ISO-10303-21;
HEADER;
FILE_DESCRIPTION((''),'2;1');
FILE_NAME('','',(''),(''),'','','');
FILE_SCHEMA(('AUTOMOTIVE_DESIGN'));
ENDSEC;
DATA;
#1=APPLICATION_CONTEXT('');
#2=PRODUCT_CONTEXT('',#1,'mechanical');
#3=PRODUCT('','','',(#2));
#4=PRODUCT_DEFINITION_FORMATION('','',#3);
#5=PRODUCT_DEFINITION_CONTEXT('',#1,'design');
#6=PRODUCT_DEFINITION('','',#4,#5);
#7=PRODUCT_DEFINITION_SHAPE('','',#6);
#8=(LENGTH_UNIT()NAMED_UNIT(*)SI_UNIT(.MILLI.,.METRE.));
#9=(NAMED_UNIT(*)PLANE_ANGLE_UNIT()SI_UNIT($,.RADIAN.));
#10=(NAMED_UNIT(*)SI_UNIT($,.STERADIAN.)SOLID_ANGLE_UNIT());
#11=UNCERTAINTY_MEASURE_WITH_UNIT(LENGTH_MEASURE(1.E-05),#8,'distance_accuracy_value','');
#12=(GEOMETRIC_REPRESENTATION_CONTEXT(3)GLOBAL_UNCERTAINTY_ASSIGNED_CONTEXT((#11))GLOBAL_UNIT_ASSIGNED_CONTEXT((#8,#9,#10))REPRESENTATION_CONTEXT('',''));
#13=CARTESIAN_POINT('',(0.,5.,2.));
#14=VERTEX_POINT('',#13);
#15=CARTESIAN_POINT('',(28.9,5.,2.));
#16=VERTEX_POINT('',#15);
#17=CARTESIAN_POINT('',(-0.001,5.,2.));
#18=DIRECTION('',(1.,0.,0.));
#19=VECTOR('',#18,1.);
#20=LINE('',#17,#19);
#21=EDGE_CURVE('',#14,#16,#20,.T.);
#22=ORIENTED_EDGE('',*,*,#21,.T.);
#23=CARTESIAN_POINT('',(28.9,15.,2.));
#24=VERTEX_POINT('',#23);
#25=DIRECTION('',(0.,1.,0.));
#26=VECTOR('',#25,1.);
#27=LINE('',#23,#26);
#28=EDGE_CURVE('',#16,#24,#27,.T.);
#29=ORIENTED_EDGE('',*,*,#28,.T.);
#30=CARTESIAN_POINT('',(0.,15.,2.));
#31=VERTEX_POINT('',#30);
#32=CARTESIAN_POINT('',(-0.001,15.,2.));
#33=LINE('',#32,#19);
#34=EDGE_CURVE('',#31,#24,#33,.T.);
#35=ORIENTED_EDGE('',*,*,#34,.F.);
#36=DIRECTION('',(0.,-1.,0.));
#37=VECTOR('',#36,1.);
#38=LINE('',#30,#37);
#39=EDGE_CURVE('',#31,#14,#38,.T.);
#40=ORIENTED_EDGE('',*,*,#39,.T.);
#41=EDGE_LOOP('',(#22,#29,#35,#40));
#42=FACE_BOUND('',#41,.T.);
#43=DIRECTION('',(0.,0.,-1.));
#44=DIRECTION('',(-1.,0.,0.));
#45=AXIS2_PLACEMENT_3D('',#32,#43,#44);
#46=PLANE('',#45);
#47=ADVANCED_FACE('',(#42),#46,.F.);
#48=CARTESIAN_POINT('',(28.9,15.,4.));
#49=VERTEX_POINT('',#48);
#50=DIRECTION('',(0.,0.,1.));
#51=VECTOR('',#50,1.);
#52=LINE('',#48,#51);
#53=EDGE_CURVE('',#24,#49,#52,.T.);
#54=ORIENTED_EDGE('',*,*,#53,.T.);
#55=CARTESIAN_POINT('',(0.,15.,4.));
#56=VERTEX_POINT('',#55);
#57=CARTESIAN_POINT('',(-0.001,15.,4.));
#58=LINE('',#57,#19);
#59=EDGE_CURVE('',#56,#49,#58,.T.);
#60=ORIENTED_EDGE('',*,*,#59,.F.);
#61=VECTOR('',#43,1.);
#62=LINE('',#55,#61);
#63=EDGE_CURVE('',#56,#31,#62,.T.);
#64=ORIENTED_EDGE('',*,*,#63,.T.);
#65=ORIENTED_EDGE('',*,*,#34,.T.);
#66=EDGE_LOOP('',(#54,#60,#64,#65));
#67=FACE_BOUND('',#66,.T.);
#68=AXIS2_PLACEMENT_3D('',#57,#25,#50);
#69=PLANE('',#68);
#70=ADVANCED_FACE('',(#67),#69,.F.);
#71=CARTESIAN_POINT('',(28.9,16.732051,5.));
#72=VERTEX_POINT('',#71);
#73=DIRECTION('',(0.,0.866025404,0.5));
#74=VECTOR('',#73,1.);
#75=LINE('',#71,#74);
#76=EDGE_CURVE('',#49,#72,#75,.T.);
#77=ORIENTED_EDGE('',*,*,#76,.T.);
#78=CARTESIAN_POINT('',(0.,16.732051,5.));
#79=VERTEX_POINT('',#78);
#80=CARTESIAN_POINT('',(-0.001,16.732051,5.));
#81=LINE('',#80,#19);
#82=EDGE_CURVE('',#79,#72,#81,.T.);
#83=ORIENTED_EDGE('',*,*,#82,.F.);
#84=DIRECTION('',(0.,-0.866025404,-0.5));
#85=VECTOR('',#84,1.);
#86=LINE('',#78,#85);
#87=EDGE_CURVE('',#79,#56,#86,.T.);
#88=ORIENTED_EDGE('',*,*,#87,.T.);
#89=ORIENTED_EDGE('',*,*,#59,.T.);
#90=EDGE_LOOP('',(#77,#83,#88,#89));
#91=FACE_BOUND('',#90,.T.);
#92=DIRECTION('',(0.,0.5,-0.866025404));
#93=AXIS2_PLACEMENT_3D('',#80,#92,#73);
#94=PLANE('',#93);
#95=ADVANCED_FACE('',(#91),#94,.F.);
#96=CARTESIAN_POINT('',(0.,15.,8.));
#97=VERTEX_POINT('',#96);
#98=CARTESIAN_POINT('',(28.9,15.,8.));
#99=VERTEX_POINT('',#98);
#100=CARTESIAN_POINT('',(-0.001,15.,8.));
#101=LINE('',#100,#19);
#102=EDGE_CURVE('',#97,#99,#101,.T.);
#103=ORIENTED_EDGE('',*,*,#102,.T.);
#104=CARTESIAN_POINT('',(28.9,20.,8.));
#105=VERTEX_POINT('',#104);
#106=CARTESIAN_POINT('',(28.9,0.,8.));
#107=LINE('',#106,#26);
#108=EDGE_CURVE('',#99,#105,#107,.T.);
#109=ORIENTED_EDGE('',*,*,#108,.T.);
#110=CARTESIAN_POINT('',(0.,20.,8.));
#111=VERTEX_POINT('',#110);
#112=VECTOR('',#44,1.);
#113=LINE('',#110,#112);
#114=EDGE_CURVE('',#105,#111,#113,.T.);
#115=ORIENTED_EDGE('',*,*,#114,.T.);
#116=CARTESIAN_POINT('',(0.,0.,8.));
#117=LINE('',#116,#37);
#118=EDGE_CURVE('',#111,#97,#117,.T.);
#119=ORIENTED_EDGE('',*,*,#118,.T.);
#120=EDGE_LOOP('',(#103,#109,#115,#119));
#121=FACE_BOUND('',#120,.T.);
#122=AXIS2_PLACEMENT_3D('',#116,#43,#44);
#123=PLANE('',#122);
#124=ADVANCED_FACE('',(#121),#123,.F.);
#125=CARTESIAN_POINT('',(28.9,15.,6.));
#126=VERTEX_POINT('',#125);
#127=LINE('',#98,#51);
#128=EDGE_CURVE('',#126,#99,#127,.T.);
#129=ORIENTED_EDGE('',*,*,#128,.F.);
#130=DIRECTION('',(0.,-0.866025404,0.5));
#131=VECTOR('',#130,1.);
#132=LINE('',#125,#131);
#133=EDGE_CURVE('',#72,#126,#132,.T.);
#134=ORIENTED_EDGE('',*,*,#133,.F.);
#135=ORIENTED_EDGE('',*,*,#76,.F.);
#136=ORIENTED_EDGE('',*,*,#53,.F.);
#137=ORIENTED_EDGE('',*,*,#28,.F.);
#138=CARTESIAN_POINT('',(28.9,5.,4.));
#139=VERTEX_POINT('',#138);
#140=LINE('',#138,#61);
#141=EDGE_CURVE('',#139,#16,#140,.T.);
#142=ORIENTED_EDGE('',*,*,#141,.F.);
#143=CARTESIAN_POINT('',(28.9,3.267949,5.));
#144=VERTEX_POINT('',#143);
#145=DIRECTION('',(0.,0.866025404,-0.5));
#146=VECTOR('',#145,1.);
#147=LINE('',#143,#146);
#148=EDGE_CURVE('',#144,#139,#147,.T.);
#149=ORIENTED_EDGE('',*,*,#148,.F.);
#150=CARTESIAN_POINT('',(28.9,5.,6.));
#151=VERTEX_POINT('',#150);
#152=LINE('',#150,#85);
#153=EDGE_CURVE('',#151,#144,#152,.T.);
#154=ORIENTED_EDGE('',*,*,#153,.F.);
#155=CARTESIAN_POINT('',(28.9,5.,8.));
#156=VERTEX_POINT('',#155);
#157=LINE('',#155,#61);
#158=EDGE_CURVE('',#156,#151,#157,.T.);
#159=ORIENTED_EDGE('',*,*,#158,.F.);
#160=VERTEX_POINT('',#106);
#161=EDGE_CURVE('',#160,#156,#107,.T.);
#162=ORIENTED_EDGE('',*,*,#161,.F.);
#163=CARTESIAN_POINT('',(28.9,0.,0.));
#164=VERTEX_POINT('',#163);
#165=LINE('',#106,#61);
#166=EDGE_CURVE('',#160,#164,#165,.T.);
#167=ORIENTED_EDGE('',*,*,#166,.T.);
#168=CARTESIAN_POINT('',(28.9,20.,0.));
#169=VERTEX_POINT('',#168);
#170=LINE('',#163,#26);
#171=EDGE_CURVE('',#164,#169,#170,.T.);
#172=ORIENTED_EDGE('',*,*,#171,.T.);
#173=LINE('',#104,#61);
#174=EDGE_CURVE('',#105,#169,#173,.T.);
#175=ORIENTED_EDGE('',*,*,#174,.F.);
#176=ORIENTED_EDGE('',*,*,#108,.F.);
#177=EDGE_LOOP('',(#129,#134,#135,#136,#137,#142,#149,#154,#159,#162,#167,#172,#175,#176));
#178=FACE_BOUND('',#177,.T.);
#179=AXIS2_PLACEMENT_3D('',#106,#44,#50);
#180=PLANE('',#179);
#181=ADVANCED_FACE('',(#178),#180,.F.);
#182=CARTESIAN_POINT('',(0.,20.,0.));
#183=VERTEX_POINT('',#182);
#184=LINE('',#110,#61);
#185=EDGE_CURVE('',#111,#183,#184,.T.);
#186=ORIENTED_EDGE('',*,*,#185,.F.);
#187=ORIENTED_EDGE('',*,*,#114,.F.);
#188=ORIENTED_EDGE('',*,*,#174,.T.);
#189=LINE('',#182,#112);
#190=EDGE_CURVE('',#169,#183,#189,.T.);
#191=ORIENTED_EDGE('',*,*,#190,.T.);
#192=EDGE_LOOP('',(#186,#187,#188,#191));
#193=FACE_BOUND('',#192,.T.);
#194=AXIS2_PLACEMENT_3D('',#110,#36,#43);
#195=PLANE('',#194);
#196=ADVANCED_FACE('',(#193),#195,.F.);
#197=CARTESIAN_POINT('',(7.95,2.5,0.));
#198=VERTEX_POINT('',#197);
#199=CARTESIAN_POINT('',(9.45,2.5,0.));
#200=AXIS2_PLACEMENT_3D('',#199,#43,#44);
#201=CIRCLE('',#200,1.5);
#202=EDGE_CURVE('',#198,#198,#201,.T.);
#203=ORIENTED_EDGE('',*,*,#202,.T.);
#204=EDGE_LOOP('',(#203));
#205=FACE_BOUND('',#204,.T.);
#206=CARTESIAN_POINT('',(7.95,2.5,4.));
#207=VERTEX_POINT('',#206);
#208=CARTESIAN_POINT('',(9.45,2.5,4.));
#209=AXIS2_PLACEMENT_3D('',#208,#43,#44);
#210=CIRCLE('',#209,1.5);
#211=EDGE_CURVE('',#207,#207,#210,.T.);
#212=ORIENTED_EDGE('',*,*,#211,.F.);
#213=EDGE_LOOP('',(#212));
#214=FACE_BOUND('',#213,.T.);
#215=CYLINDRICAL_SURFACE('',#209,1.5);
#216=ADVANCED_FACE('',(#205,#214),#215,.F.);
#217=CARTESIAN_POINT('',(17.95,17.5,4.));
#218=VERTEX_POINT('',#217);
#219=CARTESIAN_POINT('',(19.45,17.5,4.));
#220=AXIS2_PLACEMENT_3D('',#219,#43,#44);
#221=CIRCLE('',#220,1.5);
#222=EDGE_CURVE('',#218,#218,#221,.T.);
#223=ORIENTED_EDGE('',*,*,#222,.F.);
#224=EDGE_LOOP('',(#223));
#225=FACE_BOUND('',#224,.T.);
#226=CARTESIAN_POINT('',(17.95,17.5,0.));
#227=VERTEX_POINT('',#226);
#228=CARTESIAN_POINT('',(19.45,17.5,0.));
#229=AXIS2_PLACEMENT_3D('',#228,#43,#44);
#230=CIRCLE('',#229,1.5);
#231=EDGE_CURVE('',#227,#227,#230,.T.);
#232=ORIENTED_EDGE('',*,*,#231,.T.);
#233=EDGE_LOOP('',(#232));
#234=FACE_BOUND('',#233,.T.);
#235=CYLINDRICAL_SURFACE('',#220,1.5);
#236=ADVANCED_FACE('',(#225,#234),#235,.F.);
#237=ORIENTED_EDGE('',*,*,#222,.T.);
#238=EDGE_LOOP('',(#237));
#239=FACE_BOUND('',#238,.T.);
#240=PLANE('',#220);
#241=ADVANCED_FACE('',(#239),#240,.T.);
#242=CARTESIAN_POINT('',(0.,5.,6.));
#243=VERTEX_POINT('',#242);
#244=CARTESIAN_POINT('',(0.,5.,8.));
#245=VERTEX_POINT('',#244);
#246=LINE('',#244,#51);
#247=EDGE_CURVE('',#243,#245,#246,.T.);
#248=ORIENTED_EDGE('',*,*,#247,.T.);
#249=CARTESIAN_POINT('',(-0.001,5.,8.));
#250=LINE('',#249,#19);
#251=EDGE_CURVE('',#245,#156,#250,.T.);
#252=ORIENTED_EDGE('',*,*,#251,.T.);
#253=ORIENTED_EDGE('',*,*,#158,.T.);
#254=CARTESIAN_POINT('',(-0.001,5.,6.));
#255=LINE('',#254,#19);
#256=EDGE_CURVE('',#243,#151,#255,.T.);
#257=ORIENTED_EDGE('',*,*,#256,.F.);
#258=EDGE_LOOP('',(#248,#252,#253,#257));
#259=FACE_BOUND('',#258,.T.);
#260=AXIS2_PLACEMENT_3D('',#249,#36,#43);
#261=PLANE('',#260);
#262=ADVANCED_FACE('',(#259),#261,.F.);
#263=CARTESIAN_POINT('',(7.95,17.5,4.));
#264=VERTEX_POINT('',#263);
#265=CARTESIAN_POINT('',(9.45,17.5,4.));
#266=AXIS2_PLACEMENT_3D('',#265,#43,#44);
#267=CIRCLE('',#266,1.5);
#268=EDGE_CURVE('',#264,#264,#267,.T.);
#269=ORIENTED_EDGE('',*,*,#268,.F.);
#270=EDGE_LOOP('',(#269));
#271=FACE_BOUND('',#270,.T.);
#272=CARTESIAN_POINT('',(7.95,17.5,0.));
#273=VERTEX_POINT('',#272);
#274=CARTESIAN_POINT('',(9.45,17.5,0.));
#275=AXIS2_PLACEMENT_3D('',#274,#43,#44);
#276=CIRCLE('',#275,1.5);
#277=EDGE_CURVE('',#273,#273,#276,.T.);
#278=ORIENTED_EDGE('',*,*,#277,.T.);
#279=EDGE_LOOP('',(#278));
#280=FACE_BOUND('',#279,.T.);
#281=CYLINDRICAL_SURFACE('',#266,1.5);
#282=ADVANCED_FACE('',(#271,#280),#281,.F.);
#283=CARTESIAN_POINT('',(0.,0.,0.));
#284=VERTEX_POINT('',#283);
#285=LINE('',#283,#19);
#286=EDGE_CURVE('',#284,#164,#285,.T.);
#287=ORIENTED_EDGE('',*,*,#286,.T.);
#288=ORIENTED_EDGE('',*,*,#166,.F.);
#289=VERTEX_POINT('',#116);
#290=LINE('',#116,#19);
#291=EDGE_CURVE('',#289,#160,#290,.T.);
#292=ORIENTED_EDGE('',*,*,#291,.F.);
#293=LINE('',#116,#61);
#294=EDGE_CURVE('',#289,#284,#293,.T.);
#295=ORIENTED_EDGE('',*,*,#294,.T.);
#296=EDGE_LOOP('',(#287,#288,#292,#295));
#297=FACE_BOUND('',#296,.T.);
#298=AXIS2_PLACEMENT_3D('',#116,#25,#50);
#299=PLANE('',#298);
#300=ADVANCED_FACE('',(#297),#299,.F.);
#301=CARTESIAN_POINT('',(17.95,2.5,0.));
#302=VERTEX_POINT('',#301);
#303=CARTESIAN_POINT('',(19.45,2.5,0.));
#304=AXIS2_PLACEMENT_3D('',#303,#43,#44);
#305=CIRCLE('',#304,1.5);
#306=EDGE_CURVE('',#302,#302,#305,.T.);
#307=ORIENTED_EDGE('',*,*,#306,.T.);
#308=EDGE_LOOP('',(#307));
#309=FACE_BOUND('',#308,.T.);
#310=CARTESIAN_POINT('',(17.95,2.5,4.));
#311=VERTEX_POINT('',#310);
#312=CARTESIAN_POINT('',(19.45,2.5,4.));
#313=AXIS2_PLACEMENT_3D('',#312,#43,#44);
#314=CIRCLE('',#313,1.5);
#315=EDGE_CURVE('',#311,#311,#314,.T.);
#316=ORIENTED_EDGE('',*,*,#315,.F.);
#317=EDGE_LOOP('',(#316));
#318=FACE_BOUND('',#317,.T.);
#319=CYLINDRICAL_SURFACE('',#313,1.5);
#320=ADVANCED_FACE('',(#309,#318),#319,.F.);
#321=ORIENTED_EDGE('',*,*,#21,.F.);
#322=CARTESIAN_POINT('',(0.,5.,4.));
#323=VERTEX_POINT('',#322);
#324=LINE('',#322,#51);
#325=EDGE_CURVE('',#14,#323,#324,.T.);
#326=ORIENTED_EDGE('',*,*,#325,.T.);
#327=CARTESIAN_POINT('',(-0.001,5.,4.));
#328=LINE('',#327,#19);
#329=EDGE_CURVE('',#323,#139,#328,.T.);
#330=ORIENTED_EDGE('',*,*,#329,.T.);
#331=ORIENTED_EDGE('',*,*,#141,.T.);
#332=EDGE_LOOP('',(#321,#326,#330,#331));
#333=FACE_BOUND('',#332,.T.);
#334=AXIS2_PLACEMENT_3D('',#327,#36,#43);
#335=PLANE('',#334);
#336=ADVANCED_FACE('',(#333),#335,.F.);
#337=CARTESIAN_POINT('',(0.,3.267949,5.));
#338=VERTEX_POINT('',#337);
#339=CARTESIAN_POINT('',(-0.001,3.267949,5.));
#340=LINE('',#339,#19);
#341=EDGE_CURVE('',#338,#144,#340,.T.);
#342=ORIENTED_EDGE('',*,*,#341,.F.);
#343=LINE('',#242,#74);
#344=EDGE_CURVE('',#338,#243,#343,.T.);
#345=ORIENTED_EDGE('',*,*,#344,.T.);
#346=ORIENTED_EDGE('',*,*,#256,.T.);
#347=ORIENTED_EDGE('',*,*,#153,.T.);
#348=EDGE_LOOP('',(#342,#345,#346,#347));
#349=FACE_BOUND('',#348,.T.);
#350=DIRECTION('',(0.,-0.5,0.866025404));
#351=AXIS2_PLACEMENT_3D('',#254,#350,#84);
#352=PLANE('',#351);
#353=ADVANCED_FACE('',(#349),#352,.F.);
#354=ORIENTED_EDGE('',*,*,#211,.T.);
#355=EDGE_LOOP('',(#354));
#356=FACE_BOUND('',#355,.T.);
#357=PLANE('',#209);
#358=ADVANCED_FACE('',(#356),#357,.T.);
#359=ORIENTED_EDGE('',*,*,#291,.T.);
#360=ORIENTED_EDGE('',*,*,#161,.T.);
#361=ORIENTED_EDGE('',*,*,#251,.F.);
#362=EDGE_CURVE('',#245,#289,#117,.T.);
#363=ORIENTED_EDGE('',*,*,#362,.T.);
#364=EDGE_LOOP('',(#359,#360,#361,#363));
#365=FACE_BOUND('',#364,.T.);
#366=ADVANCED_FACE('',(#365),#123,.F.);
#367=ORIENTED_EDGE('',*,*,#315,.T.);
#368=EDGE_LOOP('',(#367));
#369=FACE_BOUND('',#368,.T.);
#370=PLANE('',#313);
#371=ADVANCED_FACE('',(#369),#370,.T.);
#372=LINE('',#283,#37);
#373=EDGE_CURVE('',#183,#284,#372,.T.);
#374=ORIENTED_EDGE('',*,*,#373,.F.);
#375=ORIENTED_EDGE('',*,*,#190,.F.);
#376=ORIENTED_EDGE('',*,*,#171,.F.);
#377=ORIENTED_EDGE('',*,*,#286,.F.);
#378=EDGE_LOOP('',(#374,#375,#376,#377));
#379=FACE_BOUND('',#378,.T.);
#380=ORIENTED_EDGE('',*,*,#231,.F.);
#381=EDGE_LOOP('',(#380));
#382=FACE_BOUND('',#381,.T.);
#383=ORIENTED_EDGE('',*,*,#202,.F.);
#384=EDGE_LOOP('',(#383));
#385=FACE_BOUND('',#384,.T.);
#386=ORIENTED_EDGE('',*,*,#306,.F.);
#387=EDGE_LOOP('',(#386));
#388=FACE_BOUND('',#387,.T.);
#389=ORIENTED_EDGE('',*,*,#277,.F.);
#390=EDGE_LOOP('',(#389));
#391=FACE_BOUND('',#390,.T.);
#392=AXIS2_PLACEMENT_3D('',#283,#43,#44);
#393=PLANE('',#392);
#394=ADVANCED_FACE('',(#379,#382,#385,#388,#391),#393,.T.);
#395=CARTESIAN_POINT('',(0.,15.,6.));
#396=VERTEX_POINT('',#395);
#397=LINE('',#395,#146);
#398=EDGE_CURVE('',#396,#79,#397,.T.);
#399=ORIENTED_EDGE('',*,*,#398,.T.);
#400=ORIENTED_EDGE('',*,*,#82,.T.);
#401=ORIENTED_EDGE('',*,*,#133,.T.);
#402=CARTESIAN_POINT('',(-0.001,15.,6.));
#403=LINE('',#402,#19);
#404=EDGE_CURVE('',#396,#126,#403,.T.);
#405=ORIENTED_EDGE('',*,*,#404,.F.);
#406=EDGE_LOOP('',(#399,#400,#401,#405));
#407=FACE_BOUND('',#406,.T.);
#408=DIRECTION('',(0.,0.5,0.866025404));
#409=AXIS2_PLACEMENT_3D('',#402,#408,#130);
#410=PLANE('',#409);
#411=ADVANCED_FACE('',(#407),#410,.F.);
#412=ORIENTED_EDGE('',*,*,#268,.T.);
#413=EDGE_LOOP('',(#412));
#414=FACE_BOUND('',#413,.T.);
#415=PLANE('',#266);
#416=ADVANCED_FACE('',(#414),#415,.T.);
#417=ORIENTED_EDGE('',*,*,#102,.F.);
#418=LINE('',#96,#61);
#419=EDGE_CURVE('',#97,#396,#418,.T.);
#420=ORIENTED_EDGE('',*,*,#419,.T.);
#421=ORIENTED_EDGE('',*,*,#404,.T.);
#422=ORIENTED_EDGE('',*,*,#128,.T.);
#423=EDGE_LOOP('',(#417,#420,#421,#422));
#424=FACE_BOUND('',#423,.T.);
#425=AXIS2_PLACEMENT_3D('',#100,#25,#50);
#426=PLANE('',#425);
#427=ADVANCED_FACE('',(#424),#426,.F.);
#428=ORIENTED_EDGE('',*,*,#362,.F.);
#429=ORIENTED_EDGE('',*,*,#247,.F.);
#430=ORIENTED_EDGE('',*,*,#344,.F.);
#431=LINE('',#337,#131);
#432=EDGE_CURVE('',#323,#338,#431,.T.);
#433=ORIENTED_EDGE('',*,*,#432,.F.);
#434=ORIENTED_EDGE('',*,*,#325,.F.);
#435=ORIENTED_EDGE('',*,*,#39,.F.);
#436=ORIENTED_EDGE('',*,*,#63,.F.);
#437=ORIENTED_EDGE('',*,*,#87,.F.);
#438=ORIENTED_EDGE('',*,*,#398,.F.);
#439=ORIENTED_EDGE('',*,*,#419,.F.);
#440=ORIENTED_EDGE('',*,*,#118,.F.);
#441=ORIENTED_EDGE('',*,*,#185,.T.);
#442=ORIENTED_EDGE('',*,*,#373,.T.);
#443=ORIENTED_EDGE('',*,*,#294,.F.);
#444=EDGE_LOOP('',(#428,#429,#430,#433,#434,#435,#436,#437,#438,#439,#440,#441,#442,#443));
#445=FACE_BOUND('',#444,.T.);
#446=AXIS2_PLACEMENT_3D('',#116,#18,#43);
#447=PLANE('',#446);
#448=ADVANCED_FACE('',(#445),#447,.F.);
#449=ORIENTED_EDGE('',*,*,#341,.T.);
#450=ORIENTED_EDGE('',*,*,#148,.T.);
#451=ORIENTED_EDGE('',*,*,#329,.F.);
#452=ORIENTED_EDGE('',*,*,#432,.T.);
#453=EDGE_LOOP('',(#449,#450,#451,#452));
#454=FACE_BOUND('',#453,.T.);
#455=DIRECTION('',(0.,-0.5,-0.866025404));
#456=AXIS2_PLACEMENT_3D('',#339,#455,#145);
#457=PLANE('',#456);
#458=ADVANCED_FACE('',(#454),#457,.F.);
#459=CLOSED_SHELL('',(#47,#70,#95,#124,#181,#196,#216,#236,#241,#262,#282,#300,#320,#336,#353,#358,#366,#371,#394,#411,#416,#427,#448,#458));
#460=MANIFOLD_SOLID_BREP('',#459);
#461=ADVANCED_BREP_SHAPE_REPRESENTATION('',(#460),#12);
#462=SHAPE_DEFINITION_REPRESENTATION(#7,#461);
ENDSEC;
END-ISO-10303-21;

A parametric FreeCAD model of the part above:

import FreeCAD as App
import Part
import Sketcher
Q = App.Units.Quantity


def add_polygon(sketch, points):
    """Adds a closed chain of lines whose ends are joined by coincident constraints."""
    first, n = sketch.GeometryCount, len(points)
    for a, b in zip(points, points[1:] + points[:1]):
        sketch.addGeometry(Part.LineSegment(App.Vector(*a, 0), App.Vector(*b, 0)), False)
    for i in range(n):
        sketch.addConstraint(Sketcher.Constraint("Coincident", first + i, 2, first + (i + 1) % n, 1))

doc = App.newDocument("Part")
params = doc.addObject("Spreadsheet::Sheet", "Params")
for row, (alias, value) in enumerate([
    ("sketch1_height", "20 mm"),
    ("sketch1_width", "28.9 mm"),
    ("pad1_length", "8 mm"),
    ("sketch2_width", "10 mm"),
    ("sketch2_height", "2 mm"),
    ("sketch2_length", "2 mm"),
    ("sketch3_diameter", "3 mm"),
    ("pocket2_length", "4 mm"),
], start=1):
    params.set(f"A{row}", alias)
    params.set(f"B{row}", "=" + value)
    params.setAlias(f"B{row}", alias)

body = doc.addObject("PartDesign::Body", "Body")

sketch1 = doc.addObject("Sketcher::SketchObject", "Sketch")
body.addObject(sketch1)
sketch1.AttachmentSupport = (doc.XY_Plane, [""])
sketch1.MapMode = "FlatFace"
add_polygon(sketch1, [(0, 20), (0, 0), (29, 0), (29, 20)])
sketch1.addConstraint(Sketcher.Constraint("Vertical", 0))
sketch1.addConstraint(Sketcher.Constraint("Horizontal", 1))
sketch1.addConstraint(Sketcher.Constraint("Vertical", 2))
sketch1.addConstraint(Sketcher.Constraint("Horizontal", 3))
sketch1.addConstraint(Sketcher.Constraint("Coincident", 0, 2, -1, 1))
sketch1.addConstraint(Sketcher.Constraint("DistanceY", 0, 2, 0, 1, 20.0))
sketch1.addConstraint(Sketcher.Constraint("DistanceX", 1, 1, 1, 2, 28.9))
sketch1.setExpression("Constraints[9]", "Params.sketch1_height")
sketch1.setExpression("Constraints[10]", "Params.sketch1_width")
pad1 = doc.addObject("PartDesign::Pad", "Pad")
body.addObject(pad1)
pad1.Profile = sketch1
pad1.setExpression("Length", "Params.pad1_length")

sketch2 = doc.addObject("Sketcher::SketchObject", "Sketch001")
body.addObject(sketch2)
sketch2.AttachmentSupport = (doc.YZ_Plane, [""])
sketch2.MapMode = "FlatFace"
sketch2.AttachmentOffset = App.Placement(App.Vector(0, 0, 28.9), App.Rotation())
add_polygon(sketch2, [(15, 6), (15, 8), (5, 8), (5, 6), (3.3, 5), (5, 4), (5, 2), (15, 2), (15, 4), (16.7, 5)])
sketch2.addConstraint(Sketcher.Constraint("Vertical", 0))
sketch2.addConstraint(Sketcher.Constraint("Horizontal", 1))
sketch2.addConstraint(Sketcher.Constraint("Vertical", 2))
sketch2.addConstraint(Sketcher.Constraint("Vertical", 5))
sketch2.addConstraint(Sketcher.Constraint("Horizontal", 6))
sketch2.addConstraint(Sketcher.Constraint("Vertical", 7))
sketch2.addConstraint(Sketcher.Constraint("Parallel", 3, 8))
sketch2.addConstraint(Sketcher.Constraint("Parallel", 4, 9))
sketch2.addConstraint(Sketcher.Constraint("Horizontal", 4, 2, 7, 2))
sketch2.addConstraint(Sketcher.Constraint("Horizontal", 3, 2, 8, 2))
sketch2.addConstraint(Sketcher.Constraint("Horizontal", 2, 2, 9, 2))
sketch2.addConstraint(Sketcher.Constraint("Vertical", 2, 2, 4, 2))
sketch2.addConstraint(Sketcher.Constraint("Vertical", 0, 2, 6, 2))
sketch2.addConstraint(Sketcher.Constraint("Equal", 2, 5))
sketch2.addConstraint(Sketcher.Constraint("DistanceX", 1, 2, 1, 1, 10.0))
sketch2.addConstraint(Sketcher.Constraint("DistanceY", 0, 1, 0, 2, 2.0))
sketch2.addConstraint(Sketcher.Constraint("Angle", 3, Q("-150 deg")))
sketch2.addConstraint(Sketcher.Constraint("Distance", 3, 2.0))
sketch2.addConstraint(Sketcher.Constraint("DistanceX", -1, 1, 0, 2, 15.0))
sketch2.addConstraint(Sketcher.Constraint("DistanceY", -1, 1, 0, 2, 8.0))
sketch2.setExpression("Constraints[24]", "Params.sketch2_width")
sketch2.setExpression("Constraints[25]", "Params.sketch2_height")
sketch2.setExpression("Constraints[27]", "Params.sketch2_length")
pocket1 = doc.addObject("PartDesign::Pocket", "Pocket")
body.addObject(pocket1)
pocket1.Profile = sketch2
pocket1.Type = "UpToFirst"

sketch3 = doc.addObject("Sketcher::SketchObject", "Sketch002")
body.addObject(sketch3)
sketch3.AttachmentSupport = (doc.XY_Plane, [""])
sketch3.MapMode = "FlatFace"
sketch3.addGeometry(Part.Circle(App.Vector(19.4, 17.5, 0), App.Vector(0, 0, 1), 1.5), False)
sketch3.addGeometry(Part.Circle(App.Vector(9.4, 17.5, 0), App.Vector(0, 0, 1), 1.5), False)
sketch3.addGeometry(Part.Circle(App.Vector(19.4, 2.5, 0), App.Vector(0, 0, 1), 1.5), False)
sketch3.addGeometry(Part.Circle(App.Vector(9.4, 2.5, 0), App.Vector(0, 0, 1), 1.5), False)
sketch3.addConstraint(Sketcher.Constraint("Equal", 0, 1))
sketch3.addConstraint(Sketcher.Constraint("Equal", 1, 2))
sketch3.addConstraint(Sketcher.Constraint("Equal", 2, 3))
sketch3.addConstraint(Sketcher.Constraint("Horizontal", 0, 3, 1, 3))
sketch3.addConstraint(Sketcher.Constraint("Horizontal", 2, 3, 3, 3))
sketch3.addConstraint(Sketcher.Constraint("Vertical", 0, 3, 2, 3))
sketch3.addConstraint(Sketcher.Constraint("Vertical", 1, 3, 3, 3))
sketch3.addConstraint(Sketcher.Constraint("Diameter", 0, 3.0))
sketch3.addConstraint(Sketcher.Constraint("DistanceX", 1, 3, 0, 3, 10.0))
sketch3.addConstraint(Sketcher.Constraint("DistanceY", 2, 3, 0, 3, 15.0))
sketch3.addConstraint(Sketcher.Constraint("DistanceY", -1, 1, 0, 3, 17.5))
sketch3.addConstraint(Sketcher.Constraint("DistanceX", -1, 1, 0, 3, 19.45))
sketch3.setExpression("Constraints[7]", "Params.sketch3_diameter")
pocket2 = doc.addObject("PartDesign::Pocket", "Pocket001")
body.addObject(pocket2)
pocket2.Profile = sketch3
pocket2.setExpression("Length", "Params.pocket2_length")
pocket2.Reversed = True

doc.recompute()
